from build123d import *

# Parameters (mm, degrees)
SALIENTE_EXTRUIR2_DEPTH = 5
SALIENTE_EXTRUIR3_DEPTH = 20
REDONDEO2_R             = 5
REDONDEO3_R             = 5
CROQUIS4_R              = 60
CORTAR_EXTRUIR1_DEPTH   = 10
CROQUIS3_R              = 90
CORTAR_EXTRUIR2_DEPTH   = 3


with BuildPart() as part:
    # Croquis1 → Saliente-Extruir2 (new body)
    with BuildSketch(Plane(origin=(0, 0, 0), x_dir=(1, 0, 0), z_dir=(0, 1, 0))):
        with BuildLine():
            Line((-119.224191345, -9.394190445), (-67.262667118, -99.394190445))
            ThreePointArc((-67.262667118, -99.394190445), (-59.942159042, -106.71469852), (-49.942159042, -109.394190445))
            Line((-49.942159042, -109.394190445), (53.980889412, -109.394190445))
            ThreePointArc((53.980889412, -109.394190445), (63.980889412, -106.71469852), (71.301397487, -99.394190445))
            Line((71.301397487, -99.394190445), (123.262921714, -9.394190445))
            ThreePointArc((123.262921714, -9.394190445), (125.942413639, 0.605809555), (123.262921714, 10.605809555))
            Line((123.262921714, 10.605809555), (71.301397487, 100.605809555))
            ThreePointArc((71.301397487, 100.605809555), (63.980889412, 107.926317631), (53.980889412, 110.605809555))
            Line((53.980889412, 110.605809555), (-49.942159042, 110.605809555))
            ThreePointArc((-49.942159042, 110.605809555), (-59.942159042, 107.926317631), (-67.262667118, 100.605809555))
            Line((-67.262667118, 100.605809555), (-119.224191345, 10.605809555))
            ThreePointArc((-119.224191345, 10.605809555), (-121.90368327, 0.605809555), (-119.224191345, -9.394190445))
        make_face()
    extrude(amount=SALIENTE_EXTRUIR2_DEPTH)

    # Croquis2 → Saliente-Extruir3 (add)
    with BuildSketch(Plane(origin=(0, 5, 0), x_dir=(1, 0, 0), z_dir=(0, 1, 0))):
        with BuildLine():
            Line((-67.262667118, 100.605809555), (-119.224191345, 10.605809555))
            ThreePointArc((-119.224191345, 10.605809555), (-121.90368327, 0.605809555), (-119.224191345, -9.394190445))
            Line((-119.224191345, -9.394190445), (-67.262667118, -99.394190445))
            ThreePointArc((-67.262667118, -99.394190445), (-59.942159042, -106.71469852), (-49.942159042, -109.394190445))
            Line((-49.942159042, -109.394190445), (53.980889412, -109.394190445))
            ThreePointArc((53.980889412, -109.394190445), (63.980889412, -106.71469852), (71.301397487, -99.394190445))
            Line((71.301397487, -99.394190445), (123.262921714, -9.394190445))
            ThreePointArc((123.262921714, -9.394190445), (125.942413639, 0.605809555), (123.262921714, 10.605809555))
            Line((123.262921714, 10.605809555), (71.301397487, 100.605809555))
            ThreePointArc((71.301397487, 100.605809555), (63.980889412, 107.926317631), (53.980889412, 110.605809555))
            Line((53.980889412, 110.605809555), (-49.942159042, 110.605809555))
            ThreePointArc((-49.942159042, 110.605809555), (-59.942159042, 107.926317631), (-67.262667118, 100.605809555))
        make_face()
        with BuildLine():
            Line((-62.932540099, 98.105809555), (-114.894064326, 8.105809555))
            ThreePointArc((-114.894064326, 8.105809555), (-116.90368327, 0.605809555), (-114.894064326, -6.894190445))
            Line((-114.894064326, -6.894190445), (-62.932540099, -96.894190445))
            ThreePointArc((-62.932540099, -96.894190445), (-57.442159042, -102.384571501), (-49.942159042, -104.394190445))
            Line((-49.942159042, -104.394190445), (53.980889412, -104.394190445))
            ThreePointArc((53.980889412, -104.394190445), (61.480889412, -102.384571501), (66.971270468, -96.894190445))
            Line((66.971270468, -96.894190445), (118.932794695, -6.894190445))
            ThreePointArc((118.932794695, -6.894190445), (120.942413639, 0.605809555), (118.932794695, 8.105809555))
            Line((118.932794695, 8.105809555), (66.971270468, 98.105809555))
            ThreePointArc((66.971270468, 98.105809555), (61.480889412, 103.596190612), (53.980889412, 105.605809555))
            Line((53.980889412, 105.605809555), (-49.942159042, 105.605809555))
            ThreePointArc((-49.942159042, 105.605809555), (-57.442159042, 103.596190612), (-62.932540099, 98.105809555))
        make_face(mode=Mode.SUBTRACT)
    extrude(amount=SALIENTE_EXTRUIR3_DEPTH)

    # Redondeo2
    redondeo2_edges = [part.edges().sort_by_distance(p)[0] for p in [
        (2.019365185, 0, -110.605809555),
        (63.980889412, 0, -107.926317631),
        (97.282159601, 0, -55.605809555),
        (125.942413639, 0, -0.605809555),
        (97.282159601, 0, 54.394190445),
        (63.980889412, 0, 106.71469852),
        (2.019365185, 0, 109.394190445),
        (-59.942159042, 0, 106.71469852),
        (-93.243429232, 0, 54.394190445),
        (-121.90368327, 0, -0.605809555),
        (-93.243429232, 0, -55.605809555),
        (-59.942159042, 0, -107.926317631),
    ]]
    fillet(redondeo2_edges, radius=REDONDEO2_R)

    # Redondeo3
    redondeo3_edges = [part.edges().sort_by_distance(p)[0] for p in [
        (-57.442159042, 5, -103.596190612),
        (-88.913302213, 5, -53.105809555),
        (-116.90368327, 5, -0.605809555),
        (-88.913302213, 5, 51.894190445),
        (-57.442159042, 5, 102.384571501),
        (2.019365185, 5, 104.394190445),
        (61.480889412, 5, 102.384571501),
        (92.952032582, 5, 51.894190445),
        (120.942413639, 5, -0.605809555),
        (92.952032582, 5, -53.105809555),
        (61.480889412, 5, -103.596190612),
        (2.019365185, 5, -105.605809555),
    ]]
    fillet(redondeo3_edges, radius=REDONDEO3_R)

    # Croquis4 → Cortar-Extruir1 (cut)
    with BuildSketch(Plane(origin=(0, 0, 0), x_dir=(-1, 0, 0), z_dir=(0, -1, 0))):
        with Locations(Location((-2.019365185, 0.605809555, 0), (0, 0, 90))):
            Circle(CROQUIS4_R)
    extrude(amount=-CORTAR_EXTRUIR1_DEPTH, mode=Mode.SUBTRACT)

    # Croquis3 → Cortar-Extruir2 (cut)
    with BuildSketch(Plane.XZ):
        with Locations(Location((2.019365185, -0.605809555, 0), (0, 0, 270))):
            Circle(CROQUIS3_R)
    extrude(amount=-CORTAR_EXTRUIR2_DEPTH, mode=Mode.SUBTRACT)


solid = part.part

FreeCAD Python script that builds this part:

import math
import FreeCAD as App
import Part
import Sketcher

V = App.Vector
Q = App.Units.Quantity


def edges_at(feature, points):
    """Names of the edges that pass closest to the given points."""
    edges = feature.Shape.Edges
    near = lambda p: min(range(len(edges)), key=lambda i: edges[i].distToShape(Part.Vertex(*p))[0])
    return sorted({f"Edge{near(p) + 1}" for p in points})

doc = App.newDocument("Part")
body = doc.addObject("PartDesign::Body", "Body")

# Sketch on XZ plane
sketch1 = body.newObject("Sketcher::SketchObject", "Sketch")
sketch1.AttachmentSupport = (doc.getObject("XZ_Plane"), [""])
sketch1.MapMode = "FlatFace"
sketch1.addGeometry(Part.LineSegment(V(-119, 9, 0), V(-67, 99, 0)), False)
sketch1.addGeometry(Part.ArcOfCircle(Part.Circle(V(-50, 89, 0), V(0, 0, 1), 20), math.radians(90), math.radians(150)), False)
sketch1.addGeometry(Part.LineSegment(V(-50, 109, 0), V(54, 109, 0)), False)
sketch1.addGeometry(Part.ArcOfCircle(Part.Circle(V(54, 89, 0), V(0, 0, 1), 20), math.radians(30), math.radians(90)), False)
sketch1.addGeometry(Part.LineSegment(V(71, 99, 0), V(123, 9, 0)), False)
sketch1.addGeometry(Part.ArcOfCircle(Part.Circle(V(106, -1, 0), V(0, 0, 1), 20), math.radians(-30), math.radians(30)), False)
sketch1.addGeometry(Part.LineSegment(V(123, -11, 0), V(71, -101, 0)), False)
sketch1.addGeometry(Part.ArcOfCircle(Part.Circle(V(54, -91, 0), V(0, 0, 1), 20), math.radians(-90), math.radians(-30)), False)
sketch1.addGeometry(Part.LineSegment(V(54, -111, 0), V(-50, -111, 0)), False)
sketch1.addGeometry(Part.ArcOfCircle(Part.Circle(V(-50, -91, 0), V(0, 0, 1), 20), math.radians(-150), math.radians(-90)), False)
sketch1.addGeometry(Part.LineSegment(V(-67, -101, 0), V(-119, -11, 0)), False)
sketch1.addGeometry(Part.ArcOfCircle(Part.Circle(V(-102, -1, 0), V(0, 0, 1), 20), math.radians(150), math.radians(210)), False)
sketch1.addConstraint(Sketcher.Constraint("Tangent", 0, 2, 1, 2))
sketch1.addConstraint(Sketcher.Constraint("Tangent", 1, 1, 2, 1))
sketch1.addConstraint(Sketcher.Constraint("Tangent", 2, 2, 3, 2))
sketch1.addConstraint(Sketcher.Constraint("Tangent", 3, 1, 4, 1))
sketch1.addConstraint(Sketcher.Constraint("Tangent", 4, 2, 5, 2))
sketch1.addConstraint(Sketcher.Constraint("Tangent", 5, 1, 6, 1))
sketch1.addConstraint(Sketcher.Constraint("Tangent", 6, 2, 7, 2))
sketch1.addConstraint(Sketcher.Constraint("Tangent", 7, 1, 8, 1))
sketch1.addConstraint(Sketcher.Constraint("Tangent", 8, 2, 9, 2))
sketch1.addConstraint(Sketcher.Constraint("Tangent", 9, 1, 10, 1))
sketch1.addConstraint(Sketcher.Constraint("Tangent", 10, 2, 11, 2))
sketch1.addConstraint(Sketcher.Constraint("Tangent", 11, 1, 0, 1))
sketch1.addConstraint(Sketcher.Constraint("Horizontal", 2))
sketch1.addConstraint(Sketcher.Constraint("Horizontal", 8))
sketch1.addConstraint(Sketcher.Constraint("Equal", 1, 3))
sketch1.addConstraint(Sketcher.Constraint("Equal", 3, 5))
sketch1.addConstraint(Sketcher.Constraint("Equal", 5, 7))
sketch1.addConstraint(Sketcher.Constraint("Equal", 7, 9))
sketch1.addConstraint(Sketcher.Constraint("Equal", 9, 11))
sketch1.addConstraint(Sketcher.Constraint("Parallel", 0, 6))
sketch1.addConstraint(Sketcher.Constraint("Parallel", 4, 10))
sketch1.addConstraint(Sketcher.Constraint("Horizontal", 5, 3, 11, 3))
sketch1.addConstraint(Sketcher.Constraint("Horizontal", 0, 2, 3, 1))
sketch1.addConstraint(Sketcher.Constraint("Vertical", 3, 3, 7, 3))
sketch1.addConstraint(Sketcher.Constraint("Radius", 1, Q("20 mm")))
sketch1.addConstraint(Sketcher.Constraint("Angle", 0, Q("60 deg")))
sketch1.addConstraint(Sketcher.Constraint("DistanceY", 5, 3, 3, 3, Q("90 mm")))
sketch1.addConstraint(Sketcher.Constraint("DistanceX", 2, 1, 2, 2, Q("103.923048 mm")))
sketch1.addConstraint(Sketcher.Constraint("DistanceX", 1, 3, -1, 1, Q("49.942159 mm")))
sketch1.addConstraint(Sketcher.Constraint("DistanceY", -1, 1, 1, 3, Q("89.39419 mm")))
pad1 = body.newObject("PartDesign::Pad", "Pad")
pad1.Profile = sketch1
pad1.Length = 5
pad1.Reversed = True

# Sketch on XZ plane
sketch2 = body.newObject("Sketcher::SketchObject", "Sketch001")
sketch2.AttachmentSupport = (doc.getObject("XZ_Plane"), [""])
sketch2.MapMode = "FlatFace"
sketch2.AttachmentOffset = App.Placement(V(0, 0, -5), App.Rotation())
sketch2.addGeometry(Part.LineSegment(V(-67, -101, 0), V(-119, -11, 0)), False)
sketch2.addGeometry(Part.ArcOfCircle(Part.Circle(V(-102, -1, 0), V(0, 0, 1), 20), math.radians(150), math.radians(210)), False)
sketch2.addGeometry(Part.LineSegment(V(-119, 9, 0), V(-67, 99, 0)), False)
sketch2.addGeometry(Part.ArcOfCircle(Part.Circle(V(-50, 89, 0), V(0, 0, 1), 20), math.radians(90), math.radians(150)), False)
sketch2.addGeometry(Part.LineSegment(V(-50, 109, 0), V(54, 109, 0)), False)
sketch2.addGeometry(Part.ArcOfCircle(Part.Circle(V(54, 89, 0), V(0, 0, 1), 20), math.radians(30), math.radians(90)), False)
sketch2.addGeometry(Part.LineSegment(V(71, 99, 0), V(123, 9, 0)), False)
sketch2.addGeometry(Part.ArcOfCircle(Part.Circle(V(106, -1, 0), V(0, 0, 1), 20), math.radians(-30), math.radians(30)), False)
sketch2.addGeometry(Part.LineSegment(V(123, -11, 0), V(71, -101, 0)), False)
sketch2.addGeometry(Part.ArcOfCircle(Part.Circle(V(54, -91, 0), V(0, 0, 1), 20), math.radians(-90), math.radians(-30)), False)
sketch2.addGeometry(Part.LineSegment(V(54, -111, 0), V(-50, -111, 0)), False)
sketch2.addGeometry(Part.ArcOfCircle(Part.Circle(V(-50, -91, 0), V(0, 0, 1), 20), math.radians(-150), math.radians(-90)), False)
sketch2.addGeometry(Part.LineSegment(V(-115, -8, 0), V(-63, -98, 0)), False)
sketch2.addGeometry(Part.ArcOfCircle(Part.Circle(V(-50, -91, 0), V(0, 0, 1), 15), math.radians(-150), math.radians(-90)), False)
sketch2.addGeometry(Part.LineSegment(V(-50, -106, 0), V(54, -106, 0)), False)
sketch2.addGeometry(Part.ArcOfCircle(Part.Circle(V(54, -91, 0), V(0, 0, 1), 15), math.radians(-90), math.radians(-30)), False)
sketch2.addGeometry(Part.LineSegment(V(67, -98, 0), V(119, -8, 0)), False)
sketch2.addGeometry(Part.ArcOfCircle(Part.Circle(V(106, -1, 0), V(0, 0, 1), 15), math.radians(-30), math.radians(30)), False)
sketch2.addGeometry(Part.LineSegment(V(119, 7, 0), V(67, 97, 0)), False)
sketch2.addGeometry(Part.ArcOfCircle(Part.Circle(V(54, 89, 0), V(0, 0, 1), 15), math.radians(30), math.radians(90)), False)
sketch2.addGeometry(Part.LineSegment(V(54, 104, 0), V(-50, 104, 0)), False)
sketch2.addGeometry(Part.ArcOfCircle(Part.Circle(V(-50, 89, 0), V(0, 0, 1), 15), math.radians(90), math.radians(150)), False)
sketch2.addGeometry(Part.LineSegment(V(-63, 97, 0), V(-115, 7, 0)), False)
sketch2.addGeometry(Part.ArcOfCircle(Part.Circle(V(-102, -1, 0), V(0, 0, 1), 15), math.radians(150), math.radians(210)), False)
sketch2.addConstraint(Sketcher.Constraint("Tangent", 0, 2, 1, 2))
sketch2.addConstraint(Sketcher.Constraint("Tangent", 1, 1, 2, 1))
sketch2.addConstraint(Sketcher.Constraint("Tangent", 2, 2, 3, 2))
sketch2.addConstraint(Sketcher.Constraint("Tangent", 3, 1, 4, 1))
sketch2.addConstraint(Sketcher.Constraint("Tangent", 4, 2, 5, 2))
sketch2.addConstraint(Sketcher.Constraint("Tangent", 5, 1, 6, 1))
sketch2.addConstraint(Sketcher.Constraint("Tangent", 6, 2, 7, 2))
sketch2.addConstraint(Sketcher.Constraint("Tangent", 7, 1, 8, 1))
sketch2.addConstraint(Sketcher.Constraint("Tangent", 8, 2, 9, 2))
sketch2.addConstraint(Sketcher.Constraint("Tangent", 9, 1, 10, 1))
sketch2.addConstraint(Sketcher.Constraint("Tangent", 10, 2, 11, 2))
sketch2.addConstraint(Sketcher.Constraint("Tangent", 11, 1, 0, 1))
sketch2.addConstraint(Sketcher.Constraint("Tangent", 12, 2, 13, 1))
sketch2.addConstraint(Sketcher.Constraint("Tangent", 13, 2, 14, 1))
sketch2.addConstraint(Sketcher.Constraint("Tangent", 14, 2, 15, 1))
sketch2.addConstraint(Sketcher.Constraint("Tangent", 15, 2, 16, 1))
sketch2.addConstraint(Sketcher.Constraint("Tangent", 16, 2, 17, 1))
sketch2.addConstraint(Sketcher.Constraint("Tangent", 17, 2, 18, 1))
sketch2.addConstraint(Sketcher.Constraint("Tangent", 18, 2, 19, 1))
sketch2.addConstraint(Sketcher.Constraint("Tangent", 19, 2, 20, 1))
sketch2.addConstraint(Sketcher.Constraint("Tangent", 20, 2, 21, 1))
sketch2.addConstraint(Sketcher.Constraint("Tangent", 21, 2, 22, 1))
sketch2.addConstraint(Sketcher.Constraint("Tangent", 22, 2, 23, 1))
sketch2.addConstraint(Sketcher.Constraint("Tangent", 23, 2, 12, 1))
sketch2.addConstraint(Sketcher.Constraint("Horizontal", 4))
sketch2.addConstraint(Sketcher.Constraint("Horizontal", 10))
sketch2.addConstraint(Sketcher.Constraint("Horizontal", 14))
sketch2.addConstraint(Sketcher.Constraint("Horizontal", 20))
sketch2.addConstraint(Sketcher.Constraint("Coincident", 13, 3, 11, 3))
sketch2.addConstraint(Sketcher.Constraint("Coincident", 15, 3, 9, 3))
sketch2.addConstraint(Sketcher.Constraint("Coincident", 17, 3, 7, 3))
sketch2.addConstraint(Sketcher.Constraint("Coincident", 19, 3, 5, 3))
sketch2.addConstraint(Sketcher.Constraint("Coincident", 21, 3, 3, 3))
sketch2.addConstraint(Sketcher.Constraint("Coincident", 23, 3, 1, 3))
sketch2.addConstraint(Sketcher.Constraint("Equal", 1, 3))
sketch2.addConstraint(Sketcher.Constraint("Equal", 3, 5))
sketch2.addConstraint(Sketcher.Constraint("Equal", 5, 7))
sketch2.addConstraint(Sketcher.Constraint("Equal", 7, 9))
sketch2.addConstraint(Sketcher.Constraint("Equal", 9, 11))
sketch2.addConstraint(Sketcher.Constraint("Equal", 15, 17))
sketch2.addConstraint(Sketcher.Constraint("Equal", 17, 19))
sketch2.addConstraint(Sketcher.Constraint("Equal", 21, 23))
sketch2.addConstraint(Sketcher.Constraint("Parallel", 0, 6))
sketch2.addConstraint(Sketcher.Constraint("Parallel", 2, 8))
sketch2.addConstraint(Sketcher.Constraint("Horizontal", 1, 3, 7, 3))
sketch2.addConstraint(Sketcher.Constraint("Horizontal", 2, 2, 5, 1))
sketch2.addConstraint(Sketcher.Constraint("Vertical", 5, 3, 9, 3))
sketch2.addConstraint(Sketcher.Constraint("Radius", 1, Q("20 mm")))
sketch2.addConstraint(Sketcher.Constraint("Radius", 13, Q("15 mm")))
sketch2.addConstraint(Sketcher.Constraint("Angle", 0, Q("120 deg")))
sketch2.addConstraint(Sketcher.Constraint("DistanceY", 1, 3, 3, 3, Q("90 mm")))
sketch2.addConstraint(Sketcher.Constraint("DistanceX", 4, 1, 4, 2, Q("103.923048 mm")))
sketch2.addConstraint(Sketcher.Constraint("DistanceY", 1, 3, -1, 1, Q("0.60581 mm")))
sketch2.addConstraint(Sketcher.Constraint("DistanceX", 3, 3, -1, 1, Q("49.942159 mm")))
pad2 = body.newObject("PartDesign::Pad", "Pad001")
pad2.Profile = sketch2
pad2.Length = 20
pad2.Reversed = True
doc.recompute()

fillet = body.newObject("PartDesign::Fillet", "Fillet")
fillet.Base = (pad2, edges_at(pad2, [
    (2.019, 0, -110.606),
    (63.981, 0, -107.926),
    (97.282, 0, -55.606),
    (125.942, 0, -0.606),
    (97.282, 0, 54.394),
    (63.981, 0, 106.715),
    (2.019, 0, 109.394),
    (-59.942, 0, 106.715),
    (-93.243, 0, 54.394),
    (-121.904, 0, -0.606),
    (-93.243, 0, -55.606),
    (-59.942, 0, -107.926),
]))
fillet.Radius = 5
doc.recompute()

fillet2 = body.newObject("PartDesign::Fillet", "Fillet001")
fillet2.Base = (fillet, edges_at(fillet, [
    (-57.442, 5, -103.596),
    (-88.913, 5, -53.106),
    (-116.904, 5, -0.606),
    (-88.913, 5, 51.894),
    (-57.442, 5, 102.385),
    (2.019, 5, 104.394),
    (61.481, 5, 102.385),
    (92.952, 5, 51.894),
    (120.942, 5, -0.606),
    (92.952, 5, -53.106),
    (61.481, 5, -103.596),
    (2.019, 5, -105.606),
]))
fillet2.Radius = 5

# Sketch on XZ plane
sketch3 = body.newObject("Sketcher::SketchObject", "Sketch002")
sketch3.AttachmentSupport = (doc.getObject("XZ_Plane"), [""])
sketch3.MapMode = "FlatFace"
sketch3.addGeometry(Part.Circle(V(2, -1, 0), V(0, 0, 1), 60), False)
sketch3.addConstraint(Sketcher.Constraint("Diameter", 0, Q("120 mm")))
sketch3.addConstraint(Sketcher.Constraint("DistanceY", 0, 3, -1, 1, Q("0.60581 mm")))
sketch3.addConstraint(Sketcher.Constraint("DistanceX", -1, 1, 0, 3, Q("2.019365 mm")))
pocket1 = body.newObject("PartDesign::Pocket", "Pocket")
pocket1.Profile = sketch3
pocket1.Length = 10

# Sketch on XZ plane
sketch4 = body.newObject("Sketcher::SketchObject", "Sketch003")
sketch4.AttachmentSupport = (doc.getObject("XZ_Plane"), [""])
sketch4.MapMode = "FlatFace"
sketch4.addGeometry(Part.Circle(V(2, -1, 0), V(0, 0, 1), 90), False)
sketch4.addConstraint(Sketcher.Constraint("Diameter", 0, Q("180 mm")))
sketch4.addConstraint(Sketcher.Constraint("DistanceY", 0, 3, -1, 1, Q("0.60581 mm")))
sketch4.addConstraint(Sketcher.Constraint("DistanceX", -1, 1, 0, 3, Q("2.019365 mm")))
pocket2 = body.newObject("PartDesign::Pocket", "Pocket001")
pocket2.Profile = sketch4
pocket2.Length = 3

doc.recompute()
